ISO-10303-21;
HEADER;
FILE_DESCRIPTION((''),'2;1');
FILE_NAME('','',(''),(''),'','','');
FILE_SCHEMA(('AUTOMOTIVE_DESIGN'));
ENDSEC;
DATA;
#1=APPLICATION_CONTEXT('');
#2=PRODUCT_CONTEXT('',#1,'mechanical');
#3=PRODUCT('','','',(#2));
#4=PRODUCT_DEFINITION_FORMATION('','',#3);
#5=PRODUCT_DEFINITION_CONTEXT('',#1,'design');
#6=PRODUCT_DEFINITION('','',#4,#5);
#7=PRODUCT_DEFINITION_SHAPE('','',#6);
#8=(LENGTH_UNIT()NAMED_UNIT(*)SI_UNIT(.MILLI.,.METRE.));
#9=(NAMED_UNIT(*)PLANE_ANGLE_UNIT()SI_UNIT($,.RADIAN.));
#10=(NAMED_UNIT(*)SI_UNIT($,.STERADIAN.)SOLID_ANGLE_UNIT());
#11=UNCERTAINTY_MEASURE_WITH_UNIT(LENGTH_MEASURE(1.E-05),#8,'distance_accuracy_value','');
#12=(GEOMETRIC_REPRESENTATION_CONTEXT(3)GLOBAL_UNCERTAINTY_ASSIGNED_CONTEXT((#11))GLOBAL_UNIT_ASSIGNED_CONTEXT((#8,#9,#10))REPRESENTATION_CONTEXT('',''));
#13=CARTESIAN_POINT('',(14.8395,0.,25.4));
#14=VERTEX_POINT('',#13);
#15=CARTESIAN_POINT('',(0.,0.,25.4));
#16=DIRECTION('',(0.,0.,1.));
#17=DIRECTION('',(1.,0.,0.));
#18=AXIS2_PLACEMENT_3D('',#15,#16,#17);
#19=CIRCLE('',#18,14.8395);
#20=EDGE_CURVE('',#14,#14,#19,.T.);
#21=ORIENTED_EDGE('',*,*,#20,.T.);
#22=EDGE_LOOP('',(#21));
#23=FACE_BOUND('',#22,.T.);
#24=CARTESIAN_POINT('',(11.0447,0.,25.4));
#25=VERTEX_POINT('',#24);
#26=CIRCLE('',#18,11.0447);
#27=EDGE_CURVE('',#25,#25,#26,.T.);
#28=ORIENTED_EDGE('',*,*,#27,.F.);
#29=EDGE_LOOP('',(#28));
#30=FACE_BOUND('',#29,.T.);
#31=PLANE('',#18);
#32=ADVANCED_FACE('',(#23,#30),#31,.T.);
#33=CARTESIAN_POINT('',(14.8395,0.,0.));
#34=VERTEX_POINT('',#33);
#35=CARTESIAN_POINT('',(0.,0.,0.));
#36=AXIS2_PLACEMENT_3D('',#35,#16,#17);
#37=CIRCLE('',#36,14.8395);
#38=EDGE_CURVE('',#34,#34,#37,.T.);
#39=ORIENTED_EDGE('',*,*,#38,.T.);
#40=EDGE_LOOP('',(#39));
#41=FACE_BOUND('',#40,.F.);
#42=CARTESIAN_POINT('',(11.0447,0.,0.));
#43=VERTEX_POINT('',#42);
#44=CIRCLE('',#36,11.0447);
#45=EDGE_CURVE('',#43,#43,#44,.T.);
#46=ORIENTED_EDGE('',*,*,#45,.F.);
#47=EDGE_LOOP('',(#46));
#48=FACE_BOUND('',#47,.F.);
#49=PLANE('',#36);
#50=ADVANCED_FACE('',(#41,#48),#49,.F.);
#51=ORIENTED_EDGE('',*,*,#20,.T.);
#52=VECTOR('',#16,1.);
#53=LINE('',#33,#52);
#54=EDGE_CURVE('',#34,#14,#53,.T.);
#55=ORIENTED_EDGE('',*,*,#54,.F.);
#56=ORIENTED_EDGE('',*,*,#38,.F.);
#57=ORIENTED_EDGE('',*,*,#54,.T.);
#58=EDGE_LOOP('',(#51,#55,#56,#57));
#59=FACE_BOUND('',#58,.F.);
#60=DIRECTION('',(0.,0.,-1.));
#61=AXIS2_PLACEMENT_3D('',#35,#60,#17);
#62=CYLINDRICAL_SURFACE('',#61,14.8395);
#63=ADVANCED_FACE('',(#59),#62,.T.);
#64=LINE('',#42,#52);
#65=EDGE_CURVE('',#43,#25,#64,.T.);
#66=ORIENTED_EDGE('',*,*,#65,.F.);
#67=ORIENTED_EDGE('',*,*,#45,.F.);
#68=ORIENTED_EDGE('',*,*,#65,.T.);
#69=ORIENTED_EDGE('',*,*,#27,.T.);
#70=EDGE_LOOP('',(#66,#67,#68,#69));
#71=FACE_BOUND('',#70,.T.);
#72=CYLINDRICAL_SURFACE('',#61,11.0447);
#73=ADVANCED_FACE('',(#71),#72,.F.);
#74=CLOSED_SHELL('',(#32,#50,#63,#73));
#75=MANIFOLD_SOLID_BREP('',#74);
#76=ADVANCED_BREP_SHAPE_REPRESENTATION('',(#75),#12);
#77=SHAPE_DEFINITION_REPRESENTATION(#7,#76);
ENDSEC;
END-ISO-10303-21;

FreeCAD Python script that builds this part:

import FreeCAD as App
import Part
import Sketcher
Q = App.Units.Quantity

doc = App.newDocument("Part")
body = doc.addObject("PartDesign::Body", "Body")

# Sketch on XY plane
sketch1 = body.newObject("Sketcher::SketchObject", "Sketch")
sketch1.AttachmentSupport = (doc.getObject("XY_Plane"), [""])
sketch1.MapMode = "FlatFace"
sketch1.addGeometry([
    Part.Circle(App.Vector(0, 0, 0), App.Vector(0, 0, 1), 15),
    Part.Circle(App.Vector(0, 0, 0), App.Vector(0, 0, 1), 11),
], False)
sketch1.addConstraint([
    Sketcher.Constraint("Coincident", 0, 3, -1, 1),
    Sketcher.Constraint("Coincident", 1, 3, -1, 1),
    Sketcher.Constraint("Diameter", 0, 29.679),
    Sketcher.Constraint("Diameter", 1, 22.0894),
])
pad1 = body.newObject("PartDesign::Pad", "Pad")
pad1.Profile = sketch1
pad1.Length = Q("1 in")

doc.recompute()
